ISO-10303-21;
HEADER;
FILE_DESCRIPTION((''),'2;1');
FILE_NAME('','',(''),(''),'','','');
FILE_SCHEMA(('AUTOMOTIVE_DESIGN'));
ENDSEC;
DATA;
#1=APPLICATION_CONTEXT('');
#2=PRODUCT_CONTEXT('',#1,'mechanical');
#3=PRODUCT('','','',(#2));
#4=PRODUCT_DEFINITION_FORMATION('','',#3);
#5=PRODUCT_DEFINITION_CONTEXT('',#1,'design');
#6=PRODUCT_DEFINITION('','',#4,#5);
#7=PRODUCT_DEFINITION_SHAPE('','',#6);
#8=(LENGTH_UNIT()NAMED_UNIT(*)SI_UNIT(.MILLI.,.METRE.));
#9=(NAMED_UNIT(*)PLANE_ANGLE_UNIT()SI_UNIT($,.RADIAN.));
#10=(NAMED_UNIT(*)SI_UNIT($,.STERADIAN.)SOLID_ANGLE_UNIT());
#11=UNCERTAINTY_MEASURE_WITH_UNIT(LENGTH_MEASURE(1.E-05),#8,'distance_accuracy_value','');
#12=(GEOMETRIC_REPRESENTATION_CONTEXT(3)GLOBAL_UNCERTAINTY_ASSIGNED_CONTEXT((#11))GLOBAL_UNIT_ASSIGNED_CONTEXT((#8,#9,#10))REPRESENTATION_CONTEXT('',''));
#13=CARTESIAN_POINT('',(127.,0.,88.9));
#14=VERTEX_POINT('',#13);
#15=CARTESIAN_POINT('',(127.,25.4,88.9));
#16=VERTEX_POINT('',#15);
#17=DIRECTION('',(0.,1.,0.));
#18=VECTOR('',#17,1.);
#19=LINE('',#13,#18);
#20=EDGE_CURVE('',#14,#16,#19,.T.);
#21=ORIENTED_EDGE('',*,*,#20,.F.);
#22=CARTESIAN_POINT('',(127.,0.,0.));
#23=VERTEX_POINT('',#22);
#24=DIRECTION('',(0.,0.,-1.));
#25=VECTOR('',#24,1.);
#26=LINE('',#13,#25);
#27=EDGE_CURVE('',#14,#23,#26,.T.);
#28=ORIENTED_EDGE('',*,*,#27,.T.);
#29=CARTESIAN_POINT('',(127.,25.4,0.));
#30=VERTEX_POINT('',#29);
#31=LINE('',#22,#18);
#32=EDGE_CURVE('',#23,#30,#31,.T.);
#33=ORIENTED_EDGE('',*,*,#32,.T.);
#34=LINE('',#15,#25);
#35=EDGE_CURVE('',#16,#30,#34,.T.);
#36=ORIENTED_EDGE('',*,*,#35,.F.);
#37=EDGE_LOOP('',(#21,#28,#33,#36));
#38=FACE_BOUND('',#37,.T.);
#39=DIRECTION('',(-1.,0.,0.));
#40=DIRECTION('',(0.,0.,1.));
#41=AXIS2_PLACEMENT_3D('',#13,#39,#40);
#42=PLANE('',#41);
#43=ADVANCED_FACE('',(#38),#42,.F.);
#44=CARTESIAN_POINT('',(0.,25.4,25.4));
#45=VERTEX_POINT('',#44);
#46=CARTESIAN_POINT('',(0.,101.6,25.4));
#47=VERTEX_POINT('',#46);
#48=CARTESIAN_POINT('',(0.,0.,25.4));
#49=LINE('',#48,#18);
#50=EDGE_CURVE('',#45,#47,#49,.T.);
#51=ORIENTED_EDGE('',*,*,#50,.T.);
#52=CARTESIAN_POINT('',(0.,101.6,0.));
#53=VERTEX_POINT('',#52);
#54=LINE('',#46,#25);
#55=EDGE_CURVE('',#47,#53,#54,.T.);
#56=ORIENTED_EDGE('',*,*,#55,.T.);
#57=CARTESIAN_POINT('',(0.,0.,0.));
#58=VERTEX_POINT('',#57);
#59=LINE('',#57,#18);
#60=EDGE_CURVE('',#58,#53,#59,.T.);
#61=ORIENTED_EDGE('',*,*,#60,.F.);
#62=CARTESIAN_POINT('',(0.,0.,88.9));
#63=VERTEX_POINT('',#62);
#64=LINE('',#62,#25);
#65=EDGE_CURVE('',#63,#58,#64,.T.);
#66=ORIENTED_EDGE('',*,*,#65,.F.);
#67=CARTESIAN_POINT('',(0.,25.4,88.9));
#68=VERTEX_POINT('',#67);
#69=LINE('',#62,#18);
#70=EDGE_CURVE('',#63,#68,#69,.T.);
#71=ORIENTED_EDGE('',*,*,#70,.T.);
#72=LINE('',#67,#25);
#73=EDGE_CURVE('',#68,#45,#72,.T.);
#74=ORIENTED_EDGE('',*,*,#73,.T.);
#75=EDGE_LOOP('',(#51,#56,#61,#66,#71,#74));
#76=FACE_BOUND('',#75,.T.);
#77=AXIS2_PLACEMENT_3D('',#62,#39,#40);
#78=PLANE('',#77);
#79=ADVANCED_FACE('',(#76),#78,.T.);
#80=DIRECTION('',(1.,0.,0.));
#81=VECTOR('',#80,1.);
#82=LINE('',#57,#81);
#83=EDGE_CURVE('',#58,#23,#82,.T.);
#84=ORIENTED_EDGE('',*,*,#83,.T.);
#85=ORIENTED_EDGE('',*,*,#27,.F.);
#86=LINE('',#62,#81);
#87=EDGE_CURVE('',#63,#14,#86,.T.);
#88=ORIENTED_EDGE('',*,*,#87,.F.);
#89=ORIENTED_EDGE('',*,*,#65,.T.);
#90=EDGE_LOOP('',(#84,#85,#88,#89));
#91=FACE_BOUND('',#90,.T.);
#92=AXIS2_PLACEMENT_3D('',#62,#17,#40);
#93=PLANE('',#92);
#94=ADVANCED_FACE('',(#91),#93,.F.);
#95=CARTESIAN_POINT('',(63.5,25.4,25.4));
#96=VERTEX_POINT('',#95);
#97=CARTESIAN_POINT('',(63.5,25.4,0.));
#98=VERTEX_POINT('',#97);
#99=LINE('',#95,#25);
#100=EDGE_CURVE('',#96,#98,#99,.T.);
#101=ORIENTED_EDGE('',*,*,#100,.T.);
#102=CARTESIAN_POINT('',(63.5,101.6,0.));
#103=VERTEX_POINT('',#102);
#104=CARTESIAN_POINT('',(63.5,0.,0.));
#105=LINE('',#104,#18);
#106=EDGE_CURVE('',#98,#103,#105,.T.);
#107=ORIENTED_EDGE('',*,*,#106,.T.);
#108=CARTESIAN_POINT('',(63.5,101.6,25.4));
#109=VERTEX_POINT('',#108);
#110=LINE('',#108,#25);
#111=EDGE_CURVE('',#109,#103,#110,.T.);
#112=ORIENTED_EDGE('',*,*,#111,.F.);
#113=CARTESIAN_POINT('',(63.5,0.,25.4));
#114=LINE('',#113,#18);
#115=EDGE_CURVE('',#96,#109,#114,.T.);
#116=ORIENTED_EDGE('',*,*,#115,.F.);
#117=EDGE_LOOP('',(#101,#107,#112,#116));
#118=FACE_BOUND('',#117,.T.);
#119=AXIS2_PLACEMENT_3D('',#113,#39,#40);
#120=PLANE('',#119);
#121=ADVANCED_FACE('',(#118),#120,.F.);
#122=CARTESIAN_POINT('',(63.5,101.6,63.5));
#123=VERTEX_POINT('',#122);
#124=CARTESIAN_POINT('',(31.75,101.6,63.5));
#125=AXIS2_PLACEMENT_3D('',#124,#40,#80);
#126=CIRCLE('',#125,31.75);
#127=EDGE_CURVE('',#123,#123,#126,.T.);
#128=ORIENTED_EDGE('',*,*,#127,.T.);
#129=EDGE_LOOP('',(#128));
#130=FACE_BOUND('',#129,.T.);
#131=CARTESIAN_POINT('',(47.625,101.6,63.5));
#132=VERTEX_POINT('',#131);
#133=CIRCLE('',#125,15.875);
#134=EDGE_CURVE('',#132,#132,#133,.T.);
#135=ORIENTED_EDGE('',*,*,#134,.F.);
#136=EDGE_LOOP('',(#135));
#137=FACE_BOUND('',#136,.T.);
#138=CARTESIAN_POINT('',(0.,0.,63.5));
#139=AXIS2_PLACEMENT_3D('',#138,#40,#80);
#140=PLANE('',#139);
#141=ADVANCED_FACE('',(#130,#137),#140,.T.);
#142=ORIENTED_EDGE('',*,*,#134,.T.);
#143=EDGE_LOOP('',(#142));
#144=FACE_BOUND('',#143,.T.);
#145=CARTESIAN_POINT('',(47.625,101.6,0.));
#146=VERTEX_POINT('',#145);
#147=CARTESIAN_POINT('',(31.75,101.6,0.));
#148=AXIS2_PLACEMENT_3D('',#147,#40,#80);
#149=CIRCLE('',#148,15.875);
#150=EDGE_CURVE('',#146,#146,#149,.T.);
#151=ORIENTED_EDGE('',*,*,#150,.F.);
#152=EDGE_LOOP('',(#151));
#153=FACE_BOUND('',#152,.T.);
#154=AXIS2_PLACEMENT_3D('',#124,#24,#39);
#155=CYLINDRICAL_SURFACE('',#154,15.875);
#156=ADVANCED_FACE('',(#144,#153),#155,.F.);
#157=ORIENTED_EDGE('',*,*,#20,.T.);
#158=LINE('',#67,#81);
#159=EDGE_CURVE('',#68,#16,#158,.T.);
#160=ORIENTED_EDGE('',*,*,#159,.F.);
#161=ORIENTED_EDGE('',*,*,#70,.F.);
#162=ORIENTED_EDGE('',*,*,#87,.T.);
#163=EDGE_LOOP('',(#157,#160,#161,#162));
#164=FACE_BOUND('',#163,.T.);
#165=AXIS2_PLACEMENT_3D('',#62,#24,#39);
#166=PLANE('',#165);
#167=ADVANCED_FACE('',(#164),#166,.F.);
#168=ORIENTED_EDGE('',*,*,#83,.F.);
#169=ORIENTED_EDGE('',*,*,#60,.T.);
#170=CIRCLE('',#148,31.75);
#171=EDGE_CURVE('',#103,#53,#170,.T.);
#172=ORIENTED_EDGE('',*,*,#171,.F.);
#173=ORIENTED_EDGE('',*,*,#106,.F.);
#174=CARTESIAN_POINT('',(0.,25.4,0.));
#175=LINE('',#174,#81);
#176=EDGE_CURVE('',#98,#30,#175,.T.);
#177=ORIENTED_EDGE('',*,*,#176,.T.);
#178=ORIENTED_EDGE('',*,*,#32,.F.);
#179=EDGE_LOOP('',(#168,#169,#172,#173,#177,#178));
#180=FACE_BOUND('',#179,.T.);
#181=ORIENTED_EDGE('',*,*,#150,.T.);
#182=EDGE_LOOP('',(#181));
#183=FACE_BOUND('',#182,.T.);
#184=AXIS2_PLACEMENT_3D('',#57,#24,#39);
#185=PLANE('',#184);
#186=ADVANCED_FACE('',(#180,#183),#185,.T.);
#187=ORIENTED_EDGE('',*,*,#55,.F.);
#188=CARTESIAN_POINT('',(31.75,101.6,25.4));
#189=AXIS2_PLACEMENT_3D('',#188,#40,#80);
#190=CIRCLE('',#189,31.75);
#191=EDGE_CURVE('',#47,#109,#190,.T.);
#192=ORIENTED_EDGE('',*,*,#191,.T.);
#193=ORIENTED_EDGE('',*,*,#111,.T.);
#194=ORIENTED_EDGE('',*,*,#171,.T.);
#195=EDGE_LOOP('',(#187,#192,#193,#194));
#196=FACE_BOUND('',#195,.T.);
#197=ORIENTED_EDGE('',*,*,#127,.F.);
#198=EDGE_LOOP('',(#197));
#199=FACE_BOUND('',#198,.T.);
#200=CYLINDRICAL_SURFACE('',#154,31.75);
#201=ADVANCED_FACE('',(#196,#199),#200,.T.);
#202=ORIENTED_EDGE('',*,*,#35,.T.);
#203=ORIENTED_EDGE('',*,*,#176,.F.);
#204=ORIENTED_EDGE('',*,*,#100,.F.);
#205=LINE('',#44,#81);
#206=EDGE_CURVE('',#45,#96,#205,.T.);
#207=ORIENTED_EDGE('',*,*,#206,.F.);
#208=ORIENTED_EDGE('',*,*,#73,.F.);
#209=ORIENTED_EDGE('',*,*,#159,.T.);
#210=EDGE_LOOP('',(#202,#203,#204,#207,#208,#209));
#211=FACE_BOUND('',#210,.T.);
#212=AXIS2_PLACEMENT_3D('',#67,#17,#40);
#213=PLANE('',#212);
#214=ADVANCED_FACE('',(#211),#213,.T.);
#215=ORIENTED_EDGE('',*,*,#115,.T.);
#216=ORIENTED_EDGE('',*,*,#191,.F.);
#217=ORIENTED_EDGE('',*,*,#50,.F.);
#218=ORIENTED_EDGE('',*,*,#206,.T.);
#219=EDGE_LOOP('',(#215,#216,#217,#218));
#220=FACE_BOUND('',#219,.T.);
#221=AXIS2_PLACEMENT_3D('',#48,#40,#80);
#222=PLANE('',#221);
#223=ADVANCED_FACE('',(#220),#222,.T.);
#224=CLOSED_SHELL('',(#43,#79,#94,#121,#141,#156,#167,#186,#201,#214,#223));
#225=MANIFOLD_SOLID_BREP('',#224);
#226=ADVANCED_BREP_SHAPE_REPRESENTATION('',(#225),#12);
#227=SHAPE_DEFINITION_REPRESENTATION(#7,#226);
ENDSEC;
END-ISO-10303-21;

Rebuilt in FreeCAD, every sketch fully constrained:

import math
import FreeCAD as App
import Part
import Sketcher

V = App.Vector
Q = App.Units.Quantity


def add_polygon(sketch, points):
    """Adds a closed chain of lines whose ends are joined by coincident constraints."""
    first, n = sketch.GeometryCount, len(points)
    for a, b in zip(points, points[1:] + points[:1]):
        sketch.addGeometry(Part.LineSegment(App.Vector(*a, 0), App.Vector(*b, 0)), False)
    for i in range(n):
        sketch.addConstraint(Sketcher.Constraint("Coincident", first + i, 2, first + (i + 1) % n, 1))

doc = App.newDocument("Part")
body = doc.addObject("PartDesign::Body", "Body")

sketch1 = body.newObject("Sketcher::SketchObject", "Sketch")
sketch1.AttachmentSupport = (doc.getObject("XY_Plane"), [""])
sketch1.MapMode = "FlatFace"
add_polygon(sketch1, [(0, 25), (0, 0), (127, 0), (127, 25)])
sketch1.addConstraint([
    Sketcher.Constraint("Vertical", 0),
    Sketcher.Constraint("Horizontal", 1),
    Sketcher.Constraint("Vertical", 2),
    Sketcher.Constraint("Horizontal", 3),
    Sketcher.Constraint("Coincident", 0, 2, -1, 1),
    Sketcher.Constraint("DistanceX", 1, 1, 1, 2, Q("5 in")),
    Sketcher.Constraint("DistanceY", 0, 2, 0, 1, Q("1 in")),
])
pad1 = body.newObject("PartDesign::Pad", "Pad")
pad1.Profile = sketch1
pad1.Length = Q("3.5 in")

sketch2 = body.newObject("Sketcher::SketchObject", "Sketch001")
sketch2.AttachmentSupport = (doc.getObject("XY_Plane"), [""])
sketch2.MapMode = "FlatFace"
sketch2.addGeometry([
    Part.LineSegment(V(0, 102, 0), V(0, 25, 0)),
    Part.LineSegment(V(0, 25, 0), V(64, 25, 0)),
    Part.LineSegment(V(64, 25, 0), V(64, 102, 0)),
    Part.ArcOfCircle(Part.Circle(V(32, 102, 0), V(0, 0, 1), 32), math.radians(180), math.radians(360)),
], False)
sketch2.addConstraint([
    Sketcher.Constraint("Coincident", 0, 2, 1, 1),
    Sketcher.Constraint("Coincident", 1, 2, 2, 1),
    Sketcher.Constraint("Tangent", 2, 2, 3, 2),
    Sketcher.Constraint("Tangent", 3, 1, 0, 1),
    Sketcher.Constraint("Vertical", 0),
    Sketcher.Constraint("Horizontal", 1),
    Sketcher.Constraint("Vertical", 2),
    Sketcher.Constraint("PointOnObject", 0, 2, -2),
    Sketcher.Constraint("DistanceY", 0, 2, 0, 1, Q("3 in")),
    Sketcher.Constraint("Radius", 3, Q("1.25 in")),
    Sketcher.Constraint("DistanceY", -1, 1, 3, 3, Q("4 in")),
])
pad2 = body.newObject("PartDesign::Pad", "Pad001")
pad2.Profile = sketch2
pad2.Length = Q("1 in")

sketch3 = body.newObject("Sketcher::SketchObject", "Sketch002")
sketch3.AttachmentSupport = (doc.getObject("XY_Plane"), [""])
sketch3.MapMode = "FlatFace"
sketch3.addGeometry([
    Part.Circle(V(32, 102, 0), V(0, 0, 1), 32),
    Part.Circle(V(32, 102, 0), V(0, 0, 1), 16),
], False)
sketch3.addConstraint([
    Sketcher.Constraint("Coincident", 1, 3, 0, 3),
    Sketcher.Constraint("Diameter", 0, Q("2.5 in")),
    Sketcher.Constraint("Diameter", 1, Q("1.25 in")),
    Sketcher.Constraint("DistanceY", -1, 1, 0, 3, Q("4 in")),
    Sketcher.Constraint("DistanceX", -1, 1, 0, 3, Q("1.25 in")),
])
pad3 = body.newObject("PartDesign::Pad", "Pad002")
pad3.Profile = sketch3
pad3.Length = Q("2.5 in")

doc.recompute()
